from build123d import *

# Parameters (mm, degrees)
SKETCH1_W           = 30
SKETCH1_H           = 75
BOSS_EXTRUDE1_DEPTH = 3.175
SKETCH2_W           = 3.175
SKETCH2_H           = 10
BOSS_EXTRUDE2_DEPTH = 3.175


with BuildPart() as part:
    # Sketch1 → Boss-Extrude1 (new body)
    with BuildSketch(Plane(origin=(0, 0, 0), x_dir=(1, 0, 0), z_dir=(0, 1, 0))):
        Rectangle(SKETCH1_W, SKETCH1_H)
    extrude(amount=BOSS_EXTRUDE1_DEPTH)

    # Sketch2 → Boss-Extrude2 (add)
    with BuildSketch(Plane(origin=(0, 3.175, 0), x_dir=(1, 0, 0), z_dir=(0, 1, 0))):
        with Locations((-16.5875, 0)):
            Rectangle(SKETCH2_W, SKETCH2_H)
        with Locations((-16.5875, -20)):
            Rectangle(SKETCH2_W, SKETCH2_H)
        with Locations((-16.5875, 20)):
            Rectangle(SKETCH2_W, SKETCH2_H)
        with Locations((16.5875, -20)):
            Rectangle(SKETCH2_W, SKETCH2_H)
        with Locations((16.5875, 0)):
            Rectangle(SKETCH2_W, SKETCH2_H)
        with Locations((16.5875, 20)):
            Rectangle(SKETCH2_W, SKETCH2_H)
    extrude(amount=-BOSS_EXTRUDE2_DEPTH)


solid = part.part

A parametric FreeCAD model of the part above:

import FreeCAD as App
import Part
import Sketcher


def add_polygon(sketch, points):
    """Adds a closed chain of lines whose ends are joined by coincident constraints."""
    first, n = sketch.GeometryCount, len(points)
    for a, b in zip(points, points[1:] + points[:1]):
        sketch.addGeometry(Part.LineSegment(App.Vector(*a, 0), App.Vector(*b, 0)), False)
    for i in range(n):
        sketch.addConstraint(Sketcher.Constraint("Coincident", first + i, 2, first + (i + 1) % n, 1))

doc = App.newDocument("Part")
body = doc.addObject("PartDesign::Body", "Body")

sketch1 = body.newObject("Sketcher::SketchObject", "Sketch")
sketch1.AttachmentSupport = (doc.getObject("XZ_Plane"), [""])
sketch1.MapMode = "FlatFace"
add_polygon(sketch1, [(-15, -38), (-15, 38), (15, 38), (15, -38)])
sketch1.addConstraint([
    Sketcher.Constraint("Vertical", 0),
    Sketcher.Constraint("Horizontal", 1),
    Sketcher.Constraint("Vertical", 2),
    Sketcher.Constraint("Horizontal", 3),
    Sketcher.Constraint("Symmetric", 0, 2, 2, 2, -1, 1),
    Sketcher.Constraint("DistanceX", 1, 1, 1, 2, 30.0),
    Sketcher.Constraint("DistanceY", 0, 1, 0, 2, 75.0),
])
pad1 = body.newObject("PartDesign::Pad", "Pad")
pad1.Profile = sketch1
pad1.Length = 3.175
pad1.Reversed = True

sketch2 = body.newObject("Sketcher::SketchObject", "Sketch001")
sketch2.AttachmentSupport = (doc.getObject("XZ_Plane"), [""])
sketch2.MapMode = "FlatFace"
sketch2.AttachmentOffset = App.Placement(App.Vector(0, 0, -3.175), App.Rotation())
add_polygon(sketch2, [(-18.2, -5), (-18.2, 5), (-15, 5), (-15, -5)])
add_polygon(sketch2, [(-18.2, 15), (-18.2, 25), (-15, 25), (-15, 15)])
add_polygon(sketch2, [(-18.2, -25), (-18.2, -15), (-15, -15), (-15, -25)])
add_polygon(sketch2, [(15, 15), (15, 25), (18.2, 25), (18.2, 15)])
add_polygon(sketch2, [(15, -5), (15, 5), (18.2, 5), (18.2, -5)])
add_polygon(sketch2, [(15, -25), (15, -15), (18.2, -15), (18.2, -25)])
sketch2.addConstraint([
    Sketcher.Constraint("Vertical", 0),
    Sketcher.Constraint("Horizontal", 1),
    Sketcher.Constraint("Vertical", 2),
    Sketcher.Constraint("Horizontal", 3),
    Sketcher.Constraint("Vertical", 4),
    Sketcher.Constraint("Horizontal", 5),
    Sketcher.Constraint("Vertical", 6),
    Sketcher.Constraint("Horizontal", 7),
    Sketcher.Constraint("Vertical", 8),
    Sketcher.Constraint("Horizontal", 9),
    Sketcher.Constraint("Vertical", 10),
    Sketcher.Constraint("Horizontal", 11),
    Sketcher.Constraint("Vertical", 12),
    Sketcher.Constraint("Horizontal", 13),
    Sketcher.Constraint("Vertical", 14),
    Sketcher.Constraint("Horizontal", 15),
    Sketcher.Constraint("Vertical", 16),
    Sketcher.Constraint("Horizontal", 17),
    Sketcher.Constraint("Vertical", 18),
    Sketcher.Constraint("Horizontal", 19),
    Sketcher.Constraint("Vertical", 20),
    Sketcher.Constraint("Horizontal", 21),
    Sketcher.Constraint("Vertical", 22),
    Sketcher.Constraint("Horizontal", 23),
    Sketcher.Constraint("Symmetric", 10, 2, 12, 2, -1, 1),
    Sketcher.Constraint("Symmetric", 8, 2, 14, 2, -1, 1),
    Sketcher.Constraint("Symmetric", 2, 2, 16, 2, -1, 1),
    Sketcher.Constraint("Symmetric", 0, 2, 18, 2, -1, 1),
    Sketcher.Constraint("Symmetric", 6, 2, 20, 2, -1, 1),
    Sketcher.Constraint("Symmetric", 4, 2, 22, 2, -1, 1),
    Sketcher.Constraint("Symmetric", 5, 2, 12, 2, -2),
    Sketcher.Constraint("Symmetric", 7, 2, 14, 2, -2),
    Sketcher.Constraint("Horizontal", 1, 2, 16, 2),
    Sketcher.Constraint("Vertical", 3, 2, 4, 2),
    Sketcher.Constraint("Vertical", 2, 2, 5, 2),
    Sketcher.Constraint("Equal", 2, 4),
    Sketcher.Constraint("DistanceY", 0, 1, 0, 2, 10.0),
    Sketcher.Constraint("DistanceX", 1, 2, -1, 1, 15.0),
    Sketcher.Constraint("DistanceY", -1, 1, 4, 2, 25.0),
    Sketcher.Constraint("DistanceX", 1, 1, 1, 2, 3.175),
])
pad2 = body.newObject("PartDesign::Pad", "Pad001")
pad2.Profile = sketch2
pad2.Length = 3.175

doc.recompute()
